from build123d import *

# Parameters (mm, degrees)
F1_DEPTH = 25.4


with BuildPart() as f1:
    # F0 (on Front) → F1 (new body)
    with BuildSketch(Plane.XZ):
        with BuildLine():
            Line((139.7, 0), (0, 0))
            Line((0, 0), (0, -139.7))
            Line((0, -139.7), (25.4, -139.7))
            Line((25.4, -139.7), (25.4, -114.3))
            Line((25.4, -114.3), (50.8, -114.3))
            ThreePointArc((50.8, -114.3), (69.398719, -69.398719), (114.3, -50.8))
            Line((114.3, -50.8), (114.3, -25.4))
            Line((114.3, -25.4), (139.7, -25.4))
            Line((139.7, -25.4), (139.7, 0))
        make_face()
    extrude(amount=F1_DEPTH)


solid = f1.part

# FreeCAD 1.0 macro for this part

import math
import FreeCAD as App
import Part
import Sketcher
Q = App.Units.Quantity

doc = App.newDocument("Part")
body = doc.addObject("PartDesign::Body", "Body")

# Sketch on XZ plane
sketch1 = body.newObject("Sketcher::SketchObject", "Sketch")
sketch1.AttachmentSupport = (doc.getObject("XZ_Plane"), [""])
sketch1.MapMode = "FlatFace"
sketch1.addGeometry([
    Part.LineSegment(App.Vector(139.7, 0, 0), App.Vector(0, 0, 0)),  # 0
    Part.LineSegment(App.Vector(0, 0, 0), App.Vector(0, -139.7, 0)),  # 1
    Part.LineSegment(App.Vector(0, -139.7, 0), App.Vector(25.4, -139.7, 0)),  # 2
    Part.LineSegment(App.Vector(25.4, -139.7, 0), App.Vector(25.4, -114.3, 0)),  # 3
    Part.LineSegment(App.Vector(25.4, -114.3, 0), App.Vector(50.8, -114.3, 0)),  # 4
    Part.ArcOfCircle(Part.Circle(App.Vector(114.299999, -114.299999, 0), App.Vector(0, 0, 1), 63.499999), math.radians(89.999999), math.radians(180.000001)),  # 5
    Part.LineSegment(App.Vector(114.3, -50.8, 0), App.Vector(114.3, -25.4, 0)),  # 6
    Part.LineSegment(App.Vector(114.3, -25.4, 0), App.Vector(139.7, -25.4, 0)),  # 7
    Part.LineSegment(App.Vector(139.7, -25.4, 0), App.Vector(139.7, 0, 0)),  # 8
], False)
sketch1.addConstraint([
    Sketcher.Constraint("Coincident", 0, 2, 1, 1),
    Sketcher.Constraint("Coincident", 1, 2, 2, 1),
    Sketcher.Constraint("Coincident", 2, 2, 3, 1),
    Sketcher.Constraint("Coincident", 3, 2, 4, 1),
    Sketcher.Constraint("Coincident", 4, 2, 5, 2),
    Sketcher.Constraint("Coincident", 5, 1, 6, 1),
    Sketcher.Constraint("Coincident", 6, 2, 7, 1),
    Sketcher.Constraint("Coincident", 7, 2, 8, 1),
    Sketcher.Constraint("Coincident", 8, 2, 0, 1),
    Sketcher.Constraint("Horizontal", 0),
    Sketcher.Constraint("Vertical", 1),
    Sketcher.Constraint("Horizontal", 2),
    Sketcher.Constraint("Vertical", 3),
    Sketcher.Constraint("Horizontal", 4),
    Sketcher.Constraint("Vertical", 6),
    Sketcher.Constraint("Horizontal", 7),
    Sketcher.Constraint("Vertical", 8),
    Sketcher.Constraint("Coincident", 0, 2, -1, 1),
    Sketcher.Constraint("Horizontal", 5, 3, 3, 2),
    Sketcher.Constraint("Equal", 2, 4),
    Sketcher.Constraint("Equal", 4, 7),
    Sketcher.Constraint("Equal", 0, 1),
    Sketcher.Constraint("Equal", 7, 3),
    Sketcher.Constraint("Equal", 3, 6),
    Sketcher.Constraint("Equal", 6, 8),
    Sketcher.Constraint("Radius", 5, Q("2.4999999 in")),
    Sketcher.Constraint("DistanceX", 2, 1, 2, 2, Q("1 in")),
])
pad1 = body.newObject("PartDesign::Pad", "Pad")
pad1.Profile = sketch1
pad1.Length = Q("1 in")

doc.recompute()
